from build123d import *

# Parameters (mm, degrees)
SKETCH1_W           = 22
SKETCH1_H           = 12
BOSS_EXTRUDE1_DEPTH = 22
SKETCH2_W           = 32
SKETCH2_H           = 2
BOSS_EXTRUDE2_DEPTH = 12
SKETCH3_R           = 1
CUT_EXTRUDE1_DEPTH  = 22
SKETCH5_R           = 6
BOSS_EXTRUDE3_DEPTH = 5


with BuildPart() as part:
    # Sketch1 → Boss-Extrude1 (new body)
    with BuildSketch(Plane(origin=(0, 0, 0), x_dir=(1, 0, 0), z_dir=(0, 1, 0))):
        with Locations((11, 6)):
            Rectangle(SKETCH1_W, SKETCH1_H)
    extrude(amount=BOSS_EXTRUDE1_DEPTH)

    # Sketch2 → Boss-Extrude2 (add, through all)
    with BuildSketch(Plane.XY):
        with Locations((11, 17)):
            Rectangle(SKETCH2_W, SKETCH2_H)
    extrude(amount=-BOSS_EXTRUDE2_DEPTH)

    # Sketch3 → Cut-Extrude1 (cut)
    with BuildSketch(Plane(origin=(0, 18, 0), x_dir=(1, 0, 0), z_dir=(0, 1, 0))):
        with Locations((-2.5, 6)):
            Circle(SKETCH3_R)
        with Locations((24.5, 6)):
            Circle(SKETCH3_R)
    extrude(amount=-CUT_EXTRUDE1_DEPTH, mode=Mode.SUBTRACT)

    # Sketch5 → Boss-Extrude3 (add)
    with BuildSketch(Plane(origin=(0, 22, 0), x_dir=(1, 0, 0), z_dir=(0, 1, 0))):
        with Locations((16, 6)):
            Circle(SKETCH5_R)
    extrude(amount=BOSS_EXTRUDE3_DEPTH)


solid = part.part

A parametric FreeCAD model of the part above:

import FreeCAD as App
import Part
import Sketcher

V = App.Vector
Q = App.Units.Quantity


def add_polygon(sketch, points):
    """Adds a closed chain of lines whose ends are joined by coincident constraints."""
    first, n = sketch.GeometryCount, len(points)
    for a, b in zip(points, points[1:] + points[:1]):
        sketch.addGeometry(Part.LineSegment(App.Vector(*a, 0), App.Vector(*b, 0)), False)
    for i in range(n):
        sketch.addConstraint(Sketcher.Constraint("Coincident", first + i, 2, first + (i + 1) % n, 1))

doc = App.newDocument("Part")
params = doc.addObject("Spreadsheet::Sheet", "Params")
for row, (alias, value) in enumerate([
    ("sketch1_width", "22 mm"),
    ("sketch1_height", "12 mm"),
    ("pad1_length", "22 mm"),
    ("sketch2_width", "32 mm"),
    ("sketch2_height", "2 mm"),
    ("sketch3_diameter", "2 mm"),
    ("pocket1_length", "22 mm"),
    ("sketch4_diameter", "12 mm"),
    ("pad3_length", "5 mm"),
], start=1):
    params.set(f"A{row}", alias)
    params.set(f"B{row}", "=" + value)
    params.setAlias(f"B{row}", alias)

body = doc.addObject("PartDesign::Body", "Body")

# Sketch on XZ plane
sketch1 = body.newObject("Sketcher::SketchObject", "Sketch")
sketch1.AttachmentSupport = (doc.getObject("XZ_Plane"), [""])
sketch1.MapMode = "FlatFace"
add_polygon(sketch1, [(0, -12), (0, 0), (22, 0), (22, -12)])  # lines 0-3
sketch1.addConstraint([
    Sketcher.Constraint("Vertical", 0),
    Sketcher.Constraint("Horizontal", 1),
    Sketcher.Constraint("Vertical", 2),
    Sketcher.Constraint("Horizontal", 3),
    Sketcher.Constraint("Coincident", 0, 2, -1, 1),
    Sketcher.Constraint("DistanceX", 1, 1, 1, 2, Q("22 mm")),
    Sketcher.Constraint("DistanceY", 0, 1, 0, 2, Q("12 mm")),
])
sketch1.setExpression("Constraints[9]", "Params.sketch1_width")
sketch1.setExpression("Constraints[10]", "Params.sketch1_height")
pad1 = body.newObject("PartDesign::Pad", "Pad")
pad1.Profile = sketch1
pad1.setExpression("Length", "Params.pad1_length")
pad1.Reversed = True

# Sketch on XY plane
sketch2 = body.newObject("Sketcher::SketchObject", "Sketch001")
sketch2.AttachmentSupport = (doc.getObject("XY_Plane"), [""])
sketch2.MapMode = "FlatFace"
add_polygon(sketch2, [(-5, 18), (-5, 16), (27, 16), (27, 18)])  # lines 0-3
sketch2.addConstraint([
    Sketcher.Constraint("Vertical", 0),
    Sketcher.Constraint("Horizontal", 1),
    Sketcher.Constraint("Vertical", 2),
    Sketcher.Constraint("Horizontal", 3),
    Sketcher.Constraint("DistanceX", 1, 1, 1, 2, Q("32 mm")),
    Sketcher.Constraint("DistanceY", 0, 2, 0, 1, Q("2 mm")),
    Sketcher.Constraint("DistanceX", 0, 2, -1, 1, Q("5 mm")),
    Sketcher.Constraint("DistanceY", -1, 1, 0, 2, Q("16 mm")),
])
sketch2.setExpression("Constraints[8]", "Params.sketch2_width")
sketch2.setExpression("Constraints[9]", "Params.sketch2_height")
pad2 = body.newObject("PartDesign::Pad", "Pad001")
pad2.Profile = sketch2
pad2.Type = "UpToLast"
pad2.Reversed = True

# Sketch on XZ plane
sketch3 = body.newObject("Sketcher::SketchObject", "Sketch002")
sketch3.AttachmentSupport = (doc.getObject("XZ_Plane"), [""])
sketch3.MapMode = "FlatFace"
sketch3.AttachmentOffset = App.Placement(V(0, 0, -18), App.Rotation())
sketch3.addGeometry([
    Part.Circle(V(-2.5, -6, 0), V(0, 0, 1), 1),
    Part.Circle(V(24.5, -6, 0), V(0, 0, 1), 1),
], False)
sketch3.addConstraint([
    Sketcher.Constraint("Equal", 0, 1),
    Sketcher.Constraint("Horizontal", 0, 3, 1, 3),
    Sketcher.Constraint("Diameter", 0, Q("2 mm")),
    Sketcher.Constraint("DistanceY", 0, 3, -1, 1, Q("6 mm")),
    Sketcher.Constraint("DistanceX", 0, 3, 1, 3, Q("27 mm")),
    Sketcher.Constraint("DistanceX", 0, 3, -1, 1, Q("2.5 mm")),
])
sketch3.setExpression("Constraints[2]", "Params.sketch3_diameter")
pocket1 = body.newObject("PartDesign::Pocket", "Pocket")
pocket1.Profile = sketch3
pocket1.setExpression("Length", "Params.pocket1_length")
pocket1.Reversed = True

# Sketch on XZ plane
sketch4 = body.newObject("Sketcher::SketchObject", "Sketch003")
sketch4.AttachmentSupport = (doc.getObject("XZ_Plane"), [""])
sketch4.MapMode = "FlatFace"
sketch4.AttachmentOffset = App.Placement(V(0, 0, -22), App.Rotation())
sketch4.addGeometry(Part.Circle(V(16, -6, 0), V(0, 0, 1), 6), False)
sketch4.addConstraint([
    Sketcher.Constraint("Diameter", 0, Q("12 mm")),
    Sketcher.Constraint("DistanceX", -1, 1, 0, 3, Q("16 mm")),
    Sketcher.Constraint("DistanceY", 0, 3, -1, 1, Q("6 mm")),
])
sketch4.setExpression("Constraints[0]", "Params.sketch4_diameter")
pad3 = body.newObject("PartDesign::Pad", "Pad002")
pad3.Profile = sketch4
pad3.setExpression("Length", "Params.pad3_length")
pad3.Reversed = True

doc.recompute()
